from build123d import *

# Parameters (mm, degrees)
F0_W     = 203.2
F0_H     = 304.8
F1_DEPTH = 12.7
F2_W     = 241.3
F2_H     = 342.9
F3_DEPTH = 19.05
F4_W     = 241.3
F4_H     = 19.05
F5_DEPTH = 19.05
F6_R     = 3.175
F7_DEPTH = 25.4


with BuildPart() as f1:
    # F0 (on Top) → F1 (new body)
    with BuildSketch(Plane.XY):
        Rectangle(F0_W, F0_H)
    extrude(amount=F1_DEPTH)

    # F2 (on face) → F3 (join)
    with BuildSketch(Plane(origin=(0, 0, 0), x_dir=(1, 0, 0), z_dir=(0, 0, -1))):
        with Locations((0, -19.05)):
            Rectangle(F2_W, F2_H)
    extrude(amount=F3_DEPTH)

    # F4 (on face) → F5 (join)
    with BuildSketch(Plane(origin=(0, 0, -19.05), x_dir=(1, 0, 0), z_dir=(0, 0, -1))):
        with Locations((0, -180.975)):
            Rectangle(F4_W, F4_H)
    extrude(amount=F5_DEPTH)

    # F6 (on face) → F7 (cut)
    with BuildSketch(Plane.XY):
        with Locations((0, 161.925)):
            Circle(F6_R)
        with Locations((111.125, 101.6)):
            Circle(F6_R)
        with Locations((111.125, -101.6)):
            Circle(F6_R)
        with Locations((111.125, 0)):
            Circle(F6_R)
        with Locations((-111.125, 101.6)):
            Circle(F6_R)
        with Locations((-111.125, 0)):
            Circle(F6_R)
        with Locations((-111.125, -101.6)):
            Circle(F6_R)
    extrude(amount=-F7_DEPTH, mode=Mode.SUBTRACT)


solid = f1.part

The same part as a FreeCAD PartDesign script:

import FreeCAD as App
import Part
import Sketcher

V = App.Vector
Q = App.Units.Quantity

doc = App.newDocument("Part")
body = doc.addObject("PartDesign::Body", "Body")

# Sketch on XY plane
sketch1 = body.newObject("Sketcher::SketchObject", "Sketch")
sketch1.AttachmentSupport = (doc.getObject("XY_Plane"), [""])
sketch1.MapMode = "FlatFace"
sketch1.addGeometry(Part.LineSegment(V(-102, 152, 0), V(-102, -152, 0)), False)
sketch1.addGeometry(Part.LineSegment(V(-102, -152, 0), V(102, -152, 0)), False)
sketch1.addGeometry(Part.LineSegment(V(102, -152, 0), V(102, 152, 0)), False)
sketch1.addGeometry(Part.LineSegment(V(102, 152, 0), V(-102, 152, 0)), False)
sketch1.addConstraint(Sketcher.Constraint("Coincident", 0, 2, 1, 1))
sketch1.addConstraint(Sketcher.Constraint("Coincident", 1, 2, 2, 1))
sketch1.addConstraint(Sketcher.Constraint("Coincident", 2, 2, 3, 1))
sketch1.addConstraint(Sketcher.Constraint("Coincident", 3, 2, 0, 1))
sketch1.addConstraint(Sketcher.Constraint("Vertical", 0))
sketch1.addConstraint(Sketcher.Constraint("Horizontal", 1))
sketch1.addConstraint(Sketcher.Constraint("Vertical", 2))
sketch1.addConstraint(Sketcher.Constraint("Horizontal", 3))
sketch1.addConstraint(Sketcher.Constraint("Symmetric", 0, 2, 2, 2, -1, 1))
sketch1.addConstraint(Sketcher.Constraint("DistanceX", 1, 1, 1, 2, Q("8 in")))
sketch1.addConstraint(Sketcher.Constraint("DistanceY", 0, 2, 0, 1, Q("12 in")))
pad1 = body.newObject("PartDesign::Pad", "Pad")
pad1.Profile = sketch1
pad1.Length = Q("0.5 in")

# Sketch on XY plane
sketch2 = body.newObject("Sketcher::SketchObject", "Sketch001")
sketch2.AttachmentSupport = (doc.getObject("XY_Plane"), [""])
sketch2.MapMode = "FlatFace"
sketch2.addGeometry(Part.LineSegment(V(-121, -152, 0), V(-121, 190, 0)), False)
sketch2.addGeometry(Part.LineSegment(V(-121, 190, 0), V(121, 190, 0)), False)
sketch2.addGeometry(Part.LineSegment(V(121, 190, 0), V(121, -152, 0)), False)
sketch2.addGeometry(Part.LineSegment(V(121, -152, 0), V(-121, -152, 0)), False)
sketch2.addConstraint(Sketcher.Constraint("Coincident", 0, 2, 1, 1))
sketch2.addConstraint(Sketcher.Constraint("Coincident", 1, 2, 2, 1))
sketch2.addConstraint(Sketcher.Constraint("Coincident", 2, 2, 3, 1))
sketch2.addConstraint(Sketcher.Constraint("Coincident", 3, 2, 0, 1))
sketch2.addConstraint(Sketcher.Constraint("Vertical", 0))
sketch2.addConstraint(Sketcher.Constraint("Horizontal", 1))
sketch2.addConstraint(Sketcher.Constraint("Vertical", 2))
sketch2.addConstraint(Sketcher.Constraint("Horizontal", 3))
sketch2.addConstraint(Sketcher.Constraint("DistanceX", 1, 1, 1, 2, Q("9.5 in")))
sketch2.addConstraint(Sketcher.Constraint("DistanceY", 0, 1, 0, 2, Q("13.5 in")))
sketch2.addConstraint(Sketcher.Constraint("DistanceY", 2, 2, -1, 1, Q("6 in")))
sketch2.addConstraint(Sketcher.Constraint("DistanceX", 0, 2, -1, 1, Q("4.75 in")))
pad2 = body.newObject("PartDesign::Pad", "Pad001")
pad2.Profile = sketch2
pad2.Length = Q("0.75 in")
pad2.Reversed = True

# Sketch on XY plane
sketch3 = body.newObject("Sketcher::SketchObject", "Sketch002")
sketch3.AttachmentSupport = (doc.getObject("XY_Plane"), [""])
sketch3.MapMode = "FlatFace"
sketch3.AttachmentOffset = App.Placement(V(0, 0, -0.75 * 25.4), App.Rotation())
sketch3.addGeometry(Part.LineSegment(V(-121, 171, 0), V(-121, 190, 0)), False)
sketch3.addGeometry(Part.LineSegment(V(-121, 190, 0), V(121, 190, 0)), False)
sketch3.addGeometry(Part.LineSegment(V(121, 190, 0), V(121, 171, 0)), False)
sketch3.addGeometry(Part.LineSegment(V(121, 171, 0), V(-121, 171, 0)), False)
sketch3.addConstraint(Sketcher.Constraint("Coincident", 0, 2, 1, 1))
sketch3.addConstraint(Sketcher.Constraint("Coincident", 1, 2, 2, 1))
sketch3.addConstraint(Sketcher.Constraint("Coincident", 2, 2, 3, 1))
sketch3.addConstraint(Sketcher.Constraint("Coincident", 3, 2, 0, 1))
sketch3.addConstraint(Sketcher.Constraint("Vertical", 0))
sketch3.addConstraint(Sketcher.Constraint("Horizontal", 1))
sketch3.addConstraint(Sketcher.Constraint("Vertical", 2))
sketch3.addConstraint(Sketcher.Constraint("Horizontal", 3))
sketch3.addConstraint(Sketcher.Constraint("DistanceX", 1, 1, 1, 2, Q("9.5 in")))
sketch3.addConstraint(Sketcher.Constraint("DistanceY", 0, 1, 0, 2, Q("0.75 in")))
sketch3.addConstraint(Sketcher.Constraint("DistanceY", -1, 1, 0, 2, Q("7.5 in")))
sketch3.addConstraint(Sketcher.Constraint("DistanceX", 0, 2, -1, 1, Q("4.75 in")))
pad3 = body.newObject("PartDesign::Pad", "Pad002")
pad3.Profile = sketch3
pad3.Length = Q("0.75 in")
pad3.Reversed = True

# Sketch on XY plane
sketch4 = body.newObject("Sketcher::SketchObject", "Sketch003")
sketch4.AttachmentSupport = (doc.getObject("XY_Plane"), [""])
sketch4.MapMode = "FlatFace"
sketch4.addGeometry(Part.Circle(V(0, 161.9, 0), V(0, 0, 1), 3.2), False)
sketch4.addGeometry(Part.Circle(V(111.1, 101.6, 0), V(0, 0, 1), 3.2), False)
sketch4.addGeometry(Part.Circle(V(111.1, -101.6, 0), V(0, 0, 1), 3.2), False)
sketch4.addGeometry(Part.Circle(V(111.1, 0, 0), V(0, 0, 1), 3.2), False)
sketch4.addGeometry(Part.Circle(V(-111.1, 101.6, 0), V(0, 0, 1), 3.2), False)
sketch4.addGeometry(Part.Circle(V(-111.1, 0, 0), V(0, 0, 1), 3.2), False)
sketch4.addGeometry(Part.Circle(V(-111.1, -101.6, 0), V(0, 0, 1), 3.2), False)
sketch4.addConstraint(Sketcher.Constraint("Equal", 0, 1))
sketch4.addConstraint(Sketcher.Constraint("Equal", 1, 2))
sketch4.addConstraint(Sketcher.Constraint("Equal", 2, 3))
sketch4.addConstraint(Sketcher.Constraint("Equal", 3, 4))
sketch4.addConstraint(Sketcher.Constraint("Equal", 4, 5))
sketch4.addConstraint(Sketcher.Constraint("Equal", 5, 6))
sketch4.addConstraint(Sketcher.Constraint("Symmetric", 2, 3, 4, 3, -1, 1))
sketch4.addConstraint(Sketcher.Constraint("Symmetric", 3, 3, 5, 3, -1, 1))
sketch4.addConstraint(Sketcher.Constraint("Symmetric", 1, 3, 6, 3, -1, 1))
sketch4.addConstraint(Sketcher.Constraint("Symmetric", 1, 3, 4, 3, -2))
sketch4.addConstraint(Sketcher.Constraint("PointOnObject", 0, 3, -2))
sketch4.addConstraint(Sketcher.Constraint("PointOnObject", 3, 3, -1))
sketch4.addConstraint(Sketcher.Constraint("Vertical", 2, 3, 3, 3))
sketch4.addConstraint(Sketcher.Constraint("Diameter", 0, Q("0.25 in")))
sketch4.addConstraint(Sketcher.Constraint("DistanceY", -1, 1, 1, 3, Q("4 in")))
sketch4.addConstraint(Sketcher.Constraint("DistanceX", 4, 3, 1, 3, Q("8.75 in")))
sketch4.addConstraint(Sketcher.Constraint("DistanceY", -1, 1, 0, 3, Q("6.375 in")))
pocket1 = body.newObject("PartDesign::Pocket", "Pocket")
pocket1.Profile = sketch4
pocket1.Length = Q("1 in")

doc.recompute()
